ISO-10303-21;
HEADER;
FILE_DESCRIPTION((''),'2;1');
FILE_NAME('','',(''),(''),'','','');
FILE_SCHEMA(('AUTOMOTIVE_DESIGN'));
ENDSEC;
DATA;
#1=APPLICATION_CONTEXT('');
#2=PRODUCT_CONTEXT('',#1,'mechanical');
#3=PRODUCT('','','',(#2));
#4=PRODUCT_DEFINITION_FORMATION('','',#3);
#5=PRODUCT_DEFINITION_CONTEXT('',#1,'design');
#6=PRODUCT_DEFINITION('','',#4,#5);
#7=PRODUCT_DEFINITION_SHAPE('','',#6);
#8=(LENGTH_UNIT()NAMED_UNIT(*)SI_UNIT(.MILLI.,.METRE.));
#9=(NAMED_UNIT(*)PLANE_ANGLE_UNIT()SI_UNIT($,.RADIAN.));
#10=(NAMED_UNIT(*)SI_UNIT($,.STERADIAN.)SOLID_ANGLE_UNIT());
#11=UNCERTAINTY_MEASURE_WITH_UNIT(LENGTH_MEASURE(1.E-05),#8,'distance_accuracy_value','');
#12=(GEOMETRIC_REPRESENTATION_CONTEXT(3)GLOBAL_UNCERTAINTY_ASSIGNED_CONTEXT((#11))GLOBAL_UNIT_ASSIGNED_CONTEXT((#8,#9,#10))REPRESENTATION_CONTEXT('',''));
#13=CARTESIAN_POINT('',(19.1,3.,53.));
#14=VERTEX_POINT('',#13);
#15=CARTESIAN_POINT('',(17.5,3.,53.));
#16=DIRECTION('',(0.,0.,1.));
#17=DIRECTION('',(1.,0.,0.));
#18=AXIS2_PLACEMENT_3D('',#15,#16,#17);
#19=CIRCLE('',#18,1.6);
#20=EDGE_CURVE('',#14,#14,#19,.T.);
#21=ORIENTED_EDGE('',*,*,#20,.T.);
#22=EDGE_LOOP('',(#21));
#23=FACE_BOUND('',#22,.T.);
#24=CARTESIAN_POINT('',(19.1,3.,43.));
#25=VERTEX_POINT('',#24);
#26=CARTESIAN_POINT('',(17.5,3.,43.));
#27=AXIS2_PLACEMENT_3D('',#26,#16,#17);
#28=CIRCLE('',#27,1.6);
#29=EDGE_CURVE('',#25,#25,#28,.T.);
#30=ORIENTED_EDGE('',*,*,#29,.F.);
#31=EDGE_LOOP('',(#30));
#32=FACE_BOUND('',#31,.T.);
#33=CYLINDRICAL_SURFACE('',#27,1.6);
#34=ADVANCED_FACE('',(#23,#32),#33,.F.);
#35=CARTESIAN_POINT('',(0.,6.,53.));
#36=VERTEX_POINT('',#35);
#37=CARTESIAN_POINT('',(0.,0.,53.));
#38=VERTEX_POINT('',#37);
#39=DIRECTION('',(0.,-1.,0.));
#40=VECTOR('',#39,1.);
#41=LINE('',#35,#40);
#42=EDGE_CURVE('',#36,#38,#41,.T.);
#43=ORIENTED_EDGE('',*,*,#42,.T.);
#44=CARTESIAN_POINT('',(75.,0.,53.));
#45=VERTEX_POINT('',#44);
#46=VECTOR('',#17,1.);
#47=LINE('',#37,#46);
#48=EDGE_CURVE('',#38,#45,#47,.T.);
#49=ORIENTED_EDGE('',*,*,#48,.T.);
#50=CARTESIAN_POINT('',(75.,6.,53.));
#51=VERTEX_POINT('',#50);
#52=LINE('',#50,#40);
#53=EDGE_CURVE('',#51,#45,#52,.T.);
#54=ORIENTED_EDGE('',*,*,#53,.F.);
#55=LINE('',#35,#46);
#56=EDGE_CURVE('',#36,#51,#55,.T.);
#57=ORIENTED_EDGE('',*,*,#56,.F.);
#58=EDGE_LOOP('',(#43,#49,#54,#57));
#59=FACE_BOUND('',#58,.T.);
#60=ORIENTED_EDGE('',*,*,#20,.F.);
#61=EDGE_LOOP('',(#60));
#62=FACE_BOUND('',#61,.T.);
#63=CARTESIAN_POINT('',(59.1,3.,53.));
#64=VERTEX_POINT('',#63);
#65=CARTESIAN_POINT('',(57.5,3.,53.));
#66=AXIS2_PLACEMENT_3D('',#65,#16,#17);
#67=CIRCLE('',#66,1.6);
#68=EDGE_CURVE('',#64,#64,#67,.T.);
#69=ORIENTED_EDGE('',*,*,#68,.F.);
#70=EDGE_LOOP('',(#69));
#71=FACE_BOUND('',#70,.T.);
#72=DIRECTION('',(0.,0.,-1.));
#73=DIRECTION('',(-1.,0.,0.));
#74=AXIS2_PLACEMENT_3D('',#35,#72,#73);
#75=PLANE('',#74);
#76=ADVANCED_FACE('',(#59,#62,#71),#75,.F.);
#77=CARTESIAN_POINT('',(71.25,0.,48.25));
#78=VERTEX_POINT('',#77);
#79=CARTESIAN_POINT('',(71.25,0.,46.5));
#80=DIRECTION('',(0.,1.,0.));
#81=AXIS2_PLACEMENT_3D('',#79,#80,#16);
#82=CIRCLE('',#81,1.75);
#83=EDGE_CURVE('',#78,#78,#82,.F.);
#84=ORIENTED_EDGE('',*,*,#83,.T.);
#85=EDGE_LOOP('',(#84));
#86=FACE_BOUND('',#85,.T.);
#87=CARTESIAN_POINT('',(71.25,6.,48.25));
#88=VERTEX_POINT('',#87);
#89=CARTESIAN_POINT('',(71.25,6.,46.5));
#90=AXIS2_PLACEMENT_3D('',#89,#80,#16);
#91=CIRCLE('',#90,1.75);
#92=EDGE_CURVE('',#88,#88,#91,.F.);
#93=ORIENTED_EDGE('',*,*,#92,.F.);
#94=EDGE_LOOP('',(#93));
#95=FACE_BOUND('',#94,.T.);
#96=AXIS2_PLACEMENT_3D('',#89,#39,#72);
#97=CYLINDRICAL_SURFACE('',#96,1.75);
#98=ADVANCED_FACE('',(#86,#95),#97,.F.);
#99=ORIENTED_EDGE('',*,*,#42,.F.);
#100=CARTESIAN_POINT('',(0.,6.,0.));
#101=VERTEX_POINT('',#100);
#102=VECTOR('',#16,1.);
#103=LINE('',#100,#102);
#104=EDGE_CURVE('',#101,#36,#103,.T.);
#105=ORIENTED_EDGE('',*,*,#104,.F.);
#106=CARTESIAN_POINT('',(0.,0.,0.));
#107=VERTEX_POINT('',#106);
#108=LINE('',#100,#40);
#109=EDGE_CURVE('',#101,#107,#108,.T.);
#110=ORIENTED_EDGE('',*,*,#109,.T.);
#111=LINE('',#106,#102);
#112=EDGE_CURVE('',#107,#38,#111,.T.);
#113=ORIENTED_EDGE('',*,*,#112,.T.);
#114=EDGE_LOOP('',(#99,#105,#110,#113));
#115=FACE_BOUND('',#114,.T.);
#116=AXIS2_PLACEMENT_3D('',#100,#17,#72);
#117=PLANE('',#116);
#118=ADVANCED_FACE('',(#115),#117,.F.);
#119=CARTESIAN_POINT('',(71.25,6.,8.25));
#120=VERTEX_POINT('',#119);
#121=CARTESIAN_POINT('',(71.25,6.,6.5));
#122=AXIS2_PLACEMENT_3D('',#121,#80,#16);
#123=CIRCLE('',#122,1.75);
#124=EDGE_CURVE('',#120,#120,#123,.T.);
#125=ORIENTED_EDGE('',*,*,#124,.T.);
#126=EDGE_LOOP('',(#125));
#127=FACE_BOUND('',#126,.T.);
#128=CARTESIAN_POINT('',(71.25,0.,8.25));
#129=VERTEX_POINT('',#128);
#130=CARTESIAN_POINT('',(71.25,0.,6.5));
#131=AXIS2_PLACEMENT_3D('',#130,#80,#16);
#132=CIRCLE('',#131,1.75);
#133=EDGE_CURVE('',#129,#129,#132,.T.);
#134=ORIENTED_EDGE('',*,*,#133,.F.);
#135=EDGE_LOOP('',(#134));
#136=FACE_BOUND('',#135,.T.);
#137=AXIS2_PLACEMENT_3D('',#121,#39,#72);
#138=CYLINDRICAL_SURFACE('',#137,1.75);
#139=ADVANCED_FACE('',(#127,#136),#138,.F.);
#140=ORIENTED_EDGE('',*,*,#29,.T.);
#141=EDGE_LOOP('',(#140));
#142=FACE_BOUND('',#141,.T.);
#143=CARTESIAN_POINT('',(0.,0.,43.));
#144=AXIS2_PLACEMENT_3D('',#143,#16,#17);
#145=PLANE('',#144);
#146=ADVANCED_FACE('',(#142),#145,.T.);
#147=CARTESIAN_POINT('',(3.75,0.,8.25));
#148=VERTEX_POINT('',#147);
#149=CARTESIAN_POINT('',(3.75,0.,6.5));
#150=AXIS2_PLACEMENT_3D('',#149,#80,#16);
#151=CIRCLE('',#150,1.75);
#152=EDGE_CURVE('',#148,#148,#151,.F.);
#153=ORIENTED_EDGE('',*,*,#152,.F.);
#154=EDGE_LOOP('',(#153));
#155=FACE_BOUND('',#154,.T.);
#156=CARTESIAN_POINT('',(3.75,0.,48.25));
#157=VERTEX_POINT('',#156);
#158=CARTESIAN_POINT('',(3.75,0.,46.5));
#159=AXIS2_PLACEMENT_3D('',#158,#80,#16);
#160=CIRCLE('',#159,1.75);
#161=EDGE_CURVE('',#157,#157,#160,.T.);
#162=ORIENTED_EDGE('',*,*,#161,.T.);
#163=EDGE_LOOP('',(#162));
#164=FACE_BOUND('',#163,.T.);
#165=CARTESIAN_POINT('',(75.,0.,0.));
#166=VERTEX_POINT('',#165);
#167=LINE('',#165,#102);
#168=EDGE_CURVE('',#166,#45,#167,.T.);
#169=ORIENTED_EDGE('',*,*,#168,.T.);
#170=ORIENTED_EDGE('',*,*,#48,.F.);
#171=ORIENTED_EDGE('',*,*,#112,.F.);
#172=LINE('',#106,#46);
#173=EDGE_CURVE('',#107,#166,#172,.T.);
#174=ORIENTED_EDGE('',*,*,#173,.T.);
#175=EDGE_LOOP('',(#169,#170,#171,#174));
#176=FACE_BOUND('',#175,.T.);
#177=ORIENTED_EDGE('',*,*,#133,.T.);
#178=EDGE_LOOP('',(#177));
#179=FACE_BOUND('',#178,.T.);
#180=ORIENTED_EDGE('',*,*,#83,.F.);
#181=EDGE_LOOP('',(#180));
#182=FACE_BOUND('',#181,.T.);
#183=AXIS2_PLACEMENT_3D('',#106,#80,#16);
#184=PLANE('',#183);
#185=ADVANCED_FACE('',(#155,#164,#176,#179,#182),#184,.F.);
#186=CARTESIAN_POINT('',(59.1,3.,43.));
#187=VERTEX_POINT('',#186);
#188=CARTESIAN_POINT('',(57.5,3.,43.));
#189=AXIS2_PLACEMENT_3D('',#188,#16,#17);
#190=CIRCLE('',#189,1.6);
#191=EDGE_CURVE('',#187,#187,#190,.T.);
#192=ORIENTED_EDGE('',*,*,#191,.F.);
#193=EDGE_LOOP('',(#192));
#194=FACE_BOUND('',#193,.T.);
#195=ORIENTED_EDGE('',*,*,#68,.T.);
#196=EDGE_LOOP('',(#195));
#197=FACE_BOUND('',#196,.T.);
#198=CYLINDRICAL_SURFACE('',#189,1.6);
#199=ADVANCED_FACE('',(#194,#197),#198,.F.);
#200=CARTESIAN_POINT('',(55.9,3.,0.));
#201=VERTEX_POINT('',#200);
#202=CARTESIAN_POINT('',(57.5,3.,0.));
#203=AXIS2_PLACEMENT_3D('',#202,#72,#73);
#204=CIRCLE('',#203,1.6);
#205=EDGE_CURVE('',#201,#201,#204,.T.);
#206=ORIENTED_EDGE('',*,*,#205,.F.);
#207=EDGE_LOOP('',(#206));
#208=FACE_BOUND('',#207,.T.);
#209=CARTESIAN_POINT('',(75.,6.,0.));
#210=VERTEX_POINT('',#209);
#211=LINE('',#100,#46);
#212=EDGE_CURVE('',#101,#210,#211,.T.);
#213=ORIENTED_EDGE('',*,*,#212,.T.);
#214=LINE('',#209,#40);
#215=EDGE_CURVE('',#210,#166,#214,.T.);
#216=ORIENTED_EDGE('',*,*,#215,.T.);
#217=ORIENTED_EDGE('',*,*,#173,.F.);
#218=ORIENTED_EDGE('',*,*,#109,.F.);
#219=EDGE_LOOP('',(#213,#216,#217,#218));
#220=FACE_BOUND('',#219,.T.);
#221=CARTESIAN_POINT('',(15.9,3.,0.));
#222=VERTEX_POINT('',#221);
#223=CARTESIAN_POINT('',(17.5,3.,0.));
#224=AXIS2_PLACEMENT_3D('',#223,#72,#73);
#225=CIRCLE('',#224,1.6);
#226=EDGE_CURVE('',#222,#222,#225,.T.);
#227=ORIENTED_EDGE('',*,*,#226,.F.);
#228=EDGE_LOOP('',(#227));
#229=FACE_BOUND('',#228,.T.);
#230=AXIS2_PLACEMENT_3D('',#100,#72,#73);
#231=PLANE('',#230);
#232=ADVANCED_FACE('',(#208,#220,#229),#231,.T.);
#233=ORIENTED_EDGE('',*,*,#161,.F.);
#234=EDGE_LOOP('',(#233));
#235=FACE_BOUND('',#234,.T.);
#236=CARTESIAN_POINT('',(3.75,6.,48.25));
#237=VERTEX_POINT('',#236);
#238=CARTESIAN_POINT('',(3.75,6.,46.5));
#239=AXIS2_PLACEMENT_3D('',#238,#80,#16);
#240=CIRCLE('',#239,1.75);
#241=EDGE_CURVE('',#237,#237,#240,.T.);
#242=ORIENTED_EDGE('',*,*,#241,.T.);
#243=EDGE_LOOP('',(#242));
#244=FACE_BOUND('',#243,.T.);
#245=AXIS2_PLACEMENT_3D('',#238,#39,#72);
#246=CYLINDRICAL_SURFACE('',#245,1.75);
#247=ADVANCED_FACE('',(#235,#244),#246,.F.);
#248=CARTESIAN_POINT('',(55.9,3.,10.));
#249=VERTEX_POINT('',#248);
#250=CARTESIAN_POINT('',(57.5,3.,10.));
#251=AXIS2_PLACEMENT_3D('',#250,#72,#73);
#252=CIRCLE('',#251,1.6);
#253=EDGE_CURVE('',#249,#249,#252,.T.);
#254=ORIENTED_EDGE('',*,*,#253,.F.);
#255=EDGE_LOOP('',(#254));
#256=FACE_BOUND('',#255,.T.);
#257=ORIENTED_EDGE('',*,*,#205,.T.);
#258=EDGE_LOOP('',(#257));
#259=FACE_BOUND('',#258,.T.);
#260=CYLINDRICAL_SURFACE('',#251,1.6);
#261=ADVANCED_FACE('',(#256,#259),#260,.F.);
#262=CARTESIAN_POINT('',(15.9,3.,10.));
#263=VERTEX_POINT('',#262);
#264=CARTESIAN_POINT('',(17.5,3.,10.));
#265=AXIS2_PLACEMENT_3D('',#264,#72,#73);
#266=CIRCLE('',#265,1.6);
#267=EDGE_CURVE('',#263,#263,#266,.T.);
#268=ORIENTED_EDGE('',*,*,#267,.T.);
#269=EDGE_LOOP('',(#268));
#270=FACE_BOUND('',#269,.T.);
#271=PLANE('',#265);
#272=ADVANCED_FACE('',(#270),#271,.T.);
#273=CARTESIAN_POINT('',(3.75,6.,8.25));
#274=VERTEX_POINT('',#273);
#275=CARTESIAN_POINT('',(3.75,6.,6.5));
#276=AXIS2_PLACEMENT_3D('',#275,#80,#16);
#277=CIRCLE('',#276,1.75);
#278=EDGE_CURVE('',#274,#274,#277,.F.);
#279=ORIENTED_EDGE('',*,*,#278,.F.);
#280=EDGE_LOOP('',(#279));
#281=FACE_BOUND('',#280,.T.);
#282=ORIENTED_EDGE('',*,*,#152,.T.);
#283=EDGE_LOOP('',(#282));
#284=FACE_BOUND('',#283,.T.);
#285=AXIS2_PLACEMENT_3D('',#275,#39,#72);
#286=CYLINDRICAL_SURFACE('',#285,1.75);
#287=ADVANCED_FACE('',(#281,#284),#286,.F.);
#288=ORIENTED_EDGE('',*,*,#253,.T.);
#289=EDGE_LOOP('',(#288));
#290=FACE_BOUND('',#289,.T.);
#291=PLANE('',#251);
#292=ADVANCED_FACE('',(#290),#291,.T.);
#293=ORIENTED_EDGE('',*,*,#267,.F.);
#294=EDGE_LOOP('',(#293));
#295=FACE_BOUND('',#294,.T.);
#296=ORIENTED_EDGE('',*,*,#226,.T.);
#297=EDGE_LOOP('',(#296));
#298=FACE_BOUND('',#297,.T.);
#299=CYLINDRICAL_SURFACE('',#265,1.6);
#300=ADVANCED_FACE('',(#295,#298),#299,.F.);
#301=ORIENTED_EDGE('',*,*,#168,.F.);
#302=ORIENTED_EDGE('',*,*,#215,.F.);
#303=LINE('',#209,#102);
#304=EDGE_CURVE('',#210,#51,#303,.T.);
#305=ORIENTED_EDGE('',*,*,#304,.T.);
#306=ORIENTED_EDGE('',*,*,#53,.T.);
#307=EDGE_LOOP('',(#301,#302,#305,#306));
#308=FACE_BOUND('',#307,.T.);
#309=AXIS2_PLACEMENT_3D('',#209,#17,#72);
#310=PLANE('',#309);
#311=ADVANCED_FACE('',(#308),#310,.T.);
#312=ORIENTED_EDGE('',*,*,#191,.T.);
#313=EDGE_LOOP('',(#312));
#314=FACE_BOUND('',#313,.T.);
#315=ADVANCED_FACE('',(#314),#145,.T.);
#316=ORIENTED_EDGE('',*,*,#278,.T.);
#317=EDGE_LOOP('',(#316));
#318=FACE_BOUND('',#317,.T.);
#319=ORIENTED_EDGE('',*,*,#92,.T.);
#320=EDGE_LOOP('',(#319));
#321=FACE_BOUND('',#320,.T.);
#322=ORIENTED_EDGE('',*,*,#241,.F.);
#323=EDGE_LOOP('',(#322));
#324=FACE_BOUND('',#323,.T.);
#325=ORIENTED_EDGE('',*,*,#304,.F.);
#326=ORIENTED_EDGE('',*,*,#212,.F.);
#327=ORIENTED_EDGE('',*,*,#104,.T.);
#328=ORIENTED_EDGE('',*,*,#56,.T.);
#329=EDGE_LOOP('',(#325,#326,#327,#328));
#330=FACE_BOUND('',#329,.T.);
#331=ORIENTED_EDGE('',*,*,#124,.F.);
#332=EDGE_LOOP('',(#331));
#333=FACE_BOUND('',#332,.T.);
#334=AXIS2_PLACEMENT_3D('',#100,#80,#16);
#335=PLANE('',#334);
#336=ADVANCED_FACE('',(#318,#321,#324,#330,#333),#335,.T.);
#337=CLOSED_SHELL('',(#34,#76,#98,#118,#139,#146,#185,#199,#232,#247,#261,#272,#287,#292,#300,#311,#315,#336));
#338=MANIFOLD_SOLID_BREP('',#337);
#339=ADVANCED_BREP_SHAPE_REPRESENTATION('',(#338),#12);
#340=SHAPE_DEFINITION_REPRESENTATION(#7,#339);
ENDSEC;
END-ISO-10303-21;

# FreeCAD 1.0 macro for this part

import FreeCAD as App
import Part
import Sketcher
from FreeCAD import Vector

doc = App.newDocument("Part")
body = doc.addObject("PartDesign::Body", "Body")

# Sketch on XZ plane
sketch1 = doc.addObject("Sketcher::SketchObject", "Sketch")
body.addObject(sketch1)
sketch1.AttachmentSupport = (doc.XZ_Plane, [""])
sketch1.MapMode = "FlatFace"
sketch1.addGeometry(Part.LineSegment(Vector(0, 0, 0), Vector(0, 53, 0)), False)
sketch1.addGeometry(Part.LineSegment(Vector(0, 53, 0), Vector(75, 53, 0)), False)
sketch1.addGeometry(Part.LineSegment(Vector(75, 53, 0), Vector(75, 0, 0)), False)
sketch1.addGeometry(Part.LineSegment(Vector(75, 0, 0), Vector(0, 0, 0)), False)
sketch1.addGeometry(Part.Circle(Vector(3.8, 46.5, 0), Vector(0, 0, 1), 1.8), False)
sketch1.addGeometry(Part.Circle(Vector(71.2, 46.5, 0), Vector(0, 0, 1), 1.8), False)
sketch1.addGeometry(Part.Circle(Vector(3.8, 6.5, 0), Vector(0, 0, 1), 1.8), False)
sketch1.addGeometry(Part.Circle(Vector(71.2, 6.5, 0), Vector(0, 0, 1), 1.8), False)
sketch1.addConstraint(Sketcher.Constraint("Coincident", 0, 2, 1, 1))
sketch1.addConstraint(Sketcher.Constraint("Coincident", 1, 2, 2, 1))
sketch1.addConstraint(Sketcher.Constraint("Coincident", 2, 2, 3, 1))
sketch1.addConstraint(Sketcher.Constraint("Coincident", 3, 2, 0, 1))
sketch1.addConstraint(Sketcher.Constraint("Vertical", 0))
sketch1.addConstraint(Sketcher.Constraint("Horizontal", 1))
sketch1.addConstraint(Sketcher.Constraint("Vertical", 2))
sketch1.addConstraint(Sketcher.Constraint("Horizontal", 3))
sketch1.addConstraint(Sketcher.Constraint("Coincident", 3, 2, -1, 1))
sketch1.addConstraint(Sketcher.Constraint("Equal", 4, 5))
sketch1.addConstraint(Sketcher.Constraint("Equal", 5, 6))
sketch1.addConstraint(Sketcher.Constraint("Equal", 6, 7))
sketch1.addConstraint(Sketcher.Constraint("Horizontal", 4, 3, 5, 3))
sketch1.addConstraint(Sketcher.Constraint("Horizontal", 6, 3, 7, 3))
sketch1.addConstraint(Sketcher.Constraint("Vertical", 4, 3, 6, 3))
sketch1.addConstraint(Sketcher.Constraint("Vertical", 5, 3, 7, 3))
sketch1.addConstraint(Sketcher.Constraint("Diameter", 4, 3.5))
sketch1.addConstraint(Sketcher.Constraint("DistanceX", 1, 1, 1, 2, 75.0))
sketch1.addConstraint(Sketcher.Constraint("DistanceY", 0, 1, 0, 2, 53.0))
sketch1.addConstraint(Sketcher.Constraint("DistanceY", 6, 3, 4, 3, 40.0))
sketch1.addConstraint(Sketcher.Constraint("DistanceY", -1, 1, 4, 3, 46.5))
sketch1.addConstraint(Sketcher.Constraint("DistanceX", 4, 3, 5, 3, 67.5))
sketch1.addConstraint(Sketcher.Constraint("DistanceX", -1, 1, 4, 3, 3.75))
pad1 = doc.addObject("PartDesign::Pad", "Pad")
body.addObject(pad1)
pad1.Profile = sketch1
pad1.Length = 6
pad1.Reversed = True

# Sketch on XY plane
sketch2 = doc.addObject("Sketcher::SketchObject", "Sketch001")
body.addObject(sketch2)
sketch2.AttachmentSupport = (doc.XY_Plane, [""])
sketch2.MapMode = "FlatFace"
sketch2.AttachmentOffset = App.Placement(Vector(0, 0, 53), App.Rotation())
sketch2.addGeometry(Part.Circle(Vector(17.5, 3, 0), Vector(0, 0, 1), 1.6), False)
sketch2.addGeometry(Part.Circle(Vector(57.5, 3, 0), Vector(0, 0, 1), 1.6), False)
sketch2.addConstraint(Sketcher.Constraint("Equal", 0, 1))
sketch2.addConstraint(Sketcher.Constraint("Horizontal", 0, 3, 1, 3))
sketch2.addConstraint(Sketcher.Constraint("Diameter", 0, 3.2))
sketch2.addConstraint(Sketcher.Constraint("DistanceY", -1, 1, 0, 3, 3.0))
sketch2.addConstraint(Sketcher.Constraint("DistanceX", 0, 3, 1, 3, 40.0))
sketch2.addConstraint(Sketcher.Constraint("DistanceX", -1, 1, 0, 3, 17.5))
pocket1 = doc.addObject("PartDesign::Pocket", "Pocket")
body.addObject(pocket1)
pocket1.Profile = sketch2
pocket1.Length = 10

# Sketch on XY plane
sketch3 = doc.addObject("Sketcher::SketchObject", "Sketch002")
body.addObject(sketch3)
sketch3.AttachmentSupport = (doc.XY_Plane, [""])
sketch3.MapMode = "FlatFace"
sketch3.AttachmentOffset = App.Placement(Vector(0, 0, 10), App.Rotation())
sketch3.addGeometry(Part.Circle(Vector(17.5, 3, 0), Vector(0, 0, 1), 1.6), False)
sketch3.addGeometry(Part.Circle(Vector(57.5, 3, 0), Vector(0, 0, 1), 1.6), False)
sketch3.addConstraint(Sketcher.Constraint("Equal", 0, 1))
sketch3.addConstraint(Sketcher.Constraint("Horizontal", 0, 3, 1, 3))
sketch3.addConstraint(Sketcher.Constraint("Diameter", 0, 3.2))
sketch3.addConstraint(Sketcher.Constraint("DistanceY", -1, 1, 0, 3, 3.0))
sketch3.addConstraint(Sketcher.Constraint("DistanceX", 0, 3, 1, 3, 40.0))
sketch3.addConstraint(Sketcher.Constraint("DistanceX", -1, 1, 0, 3, 17.5))
pocket2 = doc.addObject("PartDesign::Pocket", "Pocket001")
body.addObject(pocket2)
pocket2.Profile = sketch3
pocket2.Length = 10

doc.recompute()
